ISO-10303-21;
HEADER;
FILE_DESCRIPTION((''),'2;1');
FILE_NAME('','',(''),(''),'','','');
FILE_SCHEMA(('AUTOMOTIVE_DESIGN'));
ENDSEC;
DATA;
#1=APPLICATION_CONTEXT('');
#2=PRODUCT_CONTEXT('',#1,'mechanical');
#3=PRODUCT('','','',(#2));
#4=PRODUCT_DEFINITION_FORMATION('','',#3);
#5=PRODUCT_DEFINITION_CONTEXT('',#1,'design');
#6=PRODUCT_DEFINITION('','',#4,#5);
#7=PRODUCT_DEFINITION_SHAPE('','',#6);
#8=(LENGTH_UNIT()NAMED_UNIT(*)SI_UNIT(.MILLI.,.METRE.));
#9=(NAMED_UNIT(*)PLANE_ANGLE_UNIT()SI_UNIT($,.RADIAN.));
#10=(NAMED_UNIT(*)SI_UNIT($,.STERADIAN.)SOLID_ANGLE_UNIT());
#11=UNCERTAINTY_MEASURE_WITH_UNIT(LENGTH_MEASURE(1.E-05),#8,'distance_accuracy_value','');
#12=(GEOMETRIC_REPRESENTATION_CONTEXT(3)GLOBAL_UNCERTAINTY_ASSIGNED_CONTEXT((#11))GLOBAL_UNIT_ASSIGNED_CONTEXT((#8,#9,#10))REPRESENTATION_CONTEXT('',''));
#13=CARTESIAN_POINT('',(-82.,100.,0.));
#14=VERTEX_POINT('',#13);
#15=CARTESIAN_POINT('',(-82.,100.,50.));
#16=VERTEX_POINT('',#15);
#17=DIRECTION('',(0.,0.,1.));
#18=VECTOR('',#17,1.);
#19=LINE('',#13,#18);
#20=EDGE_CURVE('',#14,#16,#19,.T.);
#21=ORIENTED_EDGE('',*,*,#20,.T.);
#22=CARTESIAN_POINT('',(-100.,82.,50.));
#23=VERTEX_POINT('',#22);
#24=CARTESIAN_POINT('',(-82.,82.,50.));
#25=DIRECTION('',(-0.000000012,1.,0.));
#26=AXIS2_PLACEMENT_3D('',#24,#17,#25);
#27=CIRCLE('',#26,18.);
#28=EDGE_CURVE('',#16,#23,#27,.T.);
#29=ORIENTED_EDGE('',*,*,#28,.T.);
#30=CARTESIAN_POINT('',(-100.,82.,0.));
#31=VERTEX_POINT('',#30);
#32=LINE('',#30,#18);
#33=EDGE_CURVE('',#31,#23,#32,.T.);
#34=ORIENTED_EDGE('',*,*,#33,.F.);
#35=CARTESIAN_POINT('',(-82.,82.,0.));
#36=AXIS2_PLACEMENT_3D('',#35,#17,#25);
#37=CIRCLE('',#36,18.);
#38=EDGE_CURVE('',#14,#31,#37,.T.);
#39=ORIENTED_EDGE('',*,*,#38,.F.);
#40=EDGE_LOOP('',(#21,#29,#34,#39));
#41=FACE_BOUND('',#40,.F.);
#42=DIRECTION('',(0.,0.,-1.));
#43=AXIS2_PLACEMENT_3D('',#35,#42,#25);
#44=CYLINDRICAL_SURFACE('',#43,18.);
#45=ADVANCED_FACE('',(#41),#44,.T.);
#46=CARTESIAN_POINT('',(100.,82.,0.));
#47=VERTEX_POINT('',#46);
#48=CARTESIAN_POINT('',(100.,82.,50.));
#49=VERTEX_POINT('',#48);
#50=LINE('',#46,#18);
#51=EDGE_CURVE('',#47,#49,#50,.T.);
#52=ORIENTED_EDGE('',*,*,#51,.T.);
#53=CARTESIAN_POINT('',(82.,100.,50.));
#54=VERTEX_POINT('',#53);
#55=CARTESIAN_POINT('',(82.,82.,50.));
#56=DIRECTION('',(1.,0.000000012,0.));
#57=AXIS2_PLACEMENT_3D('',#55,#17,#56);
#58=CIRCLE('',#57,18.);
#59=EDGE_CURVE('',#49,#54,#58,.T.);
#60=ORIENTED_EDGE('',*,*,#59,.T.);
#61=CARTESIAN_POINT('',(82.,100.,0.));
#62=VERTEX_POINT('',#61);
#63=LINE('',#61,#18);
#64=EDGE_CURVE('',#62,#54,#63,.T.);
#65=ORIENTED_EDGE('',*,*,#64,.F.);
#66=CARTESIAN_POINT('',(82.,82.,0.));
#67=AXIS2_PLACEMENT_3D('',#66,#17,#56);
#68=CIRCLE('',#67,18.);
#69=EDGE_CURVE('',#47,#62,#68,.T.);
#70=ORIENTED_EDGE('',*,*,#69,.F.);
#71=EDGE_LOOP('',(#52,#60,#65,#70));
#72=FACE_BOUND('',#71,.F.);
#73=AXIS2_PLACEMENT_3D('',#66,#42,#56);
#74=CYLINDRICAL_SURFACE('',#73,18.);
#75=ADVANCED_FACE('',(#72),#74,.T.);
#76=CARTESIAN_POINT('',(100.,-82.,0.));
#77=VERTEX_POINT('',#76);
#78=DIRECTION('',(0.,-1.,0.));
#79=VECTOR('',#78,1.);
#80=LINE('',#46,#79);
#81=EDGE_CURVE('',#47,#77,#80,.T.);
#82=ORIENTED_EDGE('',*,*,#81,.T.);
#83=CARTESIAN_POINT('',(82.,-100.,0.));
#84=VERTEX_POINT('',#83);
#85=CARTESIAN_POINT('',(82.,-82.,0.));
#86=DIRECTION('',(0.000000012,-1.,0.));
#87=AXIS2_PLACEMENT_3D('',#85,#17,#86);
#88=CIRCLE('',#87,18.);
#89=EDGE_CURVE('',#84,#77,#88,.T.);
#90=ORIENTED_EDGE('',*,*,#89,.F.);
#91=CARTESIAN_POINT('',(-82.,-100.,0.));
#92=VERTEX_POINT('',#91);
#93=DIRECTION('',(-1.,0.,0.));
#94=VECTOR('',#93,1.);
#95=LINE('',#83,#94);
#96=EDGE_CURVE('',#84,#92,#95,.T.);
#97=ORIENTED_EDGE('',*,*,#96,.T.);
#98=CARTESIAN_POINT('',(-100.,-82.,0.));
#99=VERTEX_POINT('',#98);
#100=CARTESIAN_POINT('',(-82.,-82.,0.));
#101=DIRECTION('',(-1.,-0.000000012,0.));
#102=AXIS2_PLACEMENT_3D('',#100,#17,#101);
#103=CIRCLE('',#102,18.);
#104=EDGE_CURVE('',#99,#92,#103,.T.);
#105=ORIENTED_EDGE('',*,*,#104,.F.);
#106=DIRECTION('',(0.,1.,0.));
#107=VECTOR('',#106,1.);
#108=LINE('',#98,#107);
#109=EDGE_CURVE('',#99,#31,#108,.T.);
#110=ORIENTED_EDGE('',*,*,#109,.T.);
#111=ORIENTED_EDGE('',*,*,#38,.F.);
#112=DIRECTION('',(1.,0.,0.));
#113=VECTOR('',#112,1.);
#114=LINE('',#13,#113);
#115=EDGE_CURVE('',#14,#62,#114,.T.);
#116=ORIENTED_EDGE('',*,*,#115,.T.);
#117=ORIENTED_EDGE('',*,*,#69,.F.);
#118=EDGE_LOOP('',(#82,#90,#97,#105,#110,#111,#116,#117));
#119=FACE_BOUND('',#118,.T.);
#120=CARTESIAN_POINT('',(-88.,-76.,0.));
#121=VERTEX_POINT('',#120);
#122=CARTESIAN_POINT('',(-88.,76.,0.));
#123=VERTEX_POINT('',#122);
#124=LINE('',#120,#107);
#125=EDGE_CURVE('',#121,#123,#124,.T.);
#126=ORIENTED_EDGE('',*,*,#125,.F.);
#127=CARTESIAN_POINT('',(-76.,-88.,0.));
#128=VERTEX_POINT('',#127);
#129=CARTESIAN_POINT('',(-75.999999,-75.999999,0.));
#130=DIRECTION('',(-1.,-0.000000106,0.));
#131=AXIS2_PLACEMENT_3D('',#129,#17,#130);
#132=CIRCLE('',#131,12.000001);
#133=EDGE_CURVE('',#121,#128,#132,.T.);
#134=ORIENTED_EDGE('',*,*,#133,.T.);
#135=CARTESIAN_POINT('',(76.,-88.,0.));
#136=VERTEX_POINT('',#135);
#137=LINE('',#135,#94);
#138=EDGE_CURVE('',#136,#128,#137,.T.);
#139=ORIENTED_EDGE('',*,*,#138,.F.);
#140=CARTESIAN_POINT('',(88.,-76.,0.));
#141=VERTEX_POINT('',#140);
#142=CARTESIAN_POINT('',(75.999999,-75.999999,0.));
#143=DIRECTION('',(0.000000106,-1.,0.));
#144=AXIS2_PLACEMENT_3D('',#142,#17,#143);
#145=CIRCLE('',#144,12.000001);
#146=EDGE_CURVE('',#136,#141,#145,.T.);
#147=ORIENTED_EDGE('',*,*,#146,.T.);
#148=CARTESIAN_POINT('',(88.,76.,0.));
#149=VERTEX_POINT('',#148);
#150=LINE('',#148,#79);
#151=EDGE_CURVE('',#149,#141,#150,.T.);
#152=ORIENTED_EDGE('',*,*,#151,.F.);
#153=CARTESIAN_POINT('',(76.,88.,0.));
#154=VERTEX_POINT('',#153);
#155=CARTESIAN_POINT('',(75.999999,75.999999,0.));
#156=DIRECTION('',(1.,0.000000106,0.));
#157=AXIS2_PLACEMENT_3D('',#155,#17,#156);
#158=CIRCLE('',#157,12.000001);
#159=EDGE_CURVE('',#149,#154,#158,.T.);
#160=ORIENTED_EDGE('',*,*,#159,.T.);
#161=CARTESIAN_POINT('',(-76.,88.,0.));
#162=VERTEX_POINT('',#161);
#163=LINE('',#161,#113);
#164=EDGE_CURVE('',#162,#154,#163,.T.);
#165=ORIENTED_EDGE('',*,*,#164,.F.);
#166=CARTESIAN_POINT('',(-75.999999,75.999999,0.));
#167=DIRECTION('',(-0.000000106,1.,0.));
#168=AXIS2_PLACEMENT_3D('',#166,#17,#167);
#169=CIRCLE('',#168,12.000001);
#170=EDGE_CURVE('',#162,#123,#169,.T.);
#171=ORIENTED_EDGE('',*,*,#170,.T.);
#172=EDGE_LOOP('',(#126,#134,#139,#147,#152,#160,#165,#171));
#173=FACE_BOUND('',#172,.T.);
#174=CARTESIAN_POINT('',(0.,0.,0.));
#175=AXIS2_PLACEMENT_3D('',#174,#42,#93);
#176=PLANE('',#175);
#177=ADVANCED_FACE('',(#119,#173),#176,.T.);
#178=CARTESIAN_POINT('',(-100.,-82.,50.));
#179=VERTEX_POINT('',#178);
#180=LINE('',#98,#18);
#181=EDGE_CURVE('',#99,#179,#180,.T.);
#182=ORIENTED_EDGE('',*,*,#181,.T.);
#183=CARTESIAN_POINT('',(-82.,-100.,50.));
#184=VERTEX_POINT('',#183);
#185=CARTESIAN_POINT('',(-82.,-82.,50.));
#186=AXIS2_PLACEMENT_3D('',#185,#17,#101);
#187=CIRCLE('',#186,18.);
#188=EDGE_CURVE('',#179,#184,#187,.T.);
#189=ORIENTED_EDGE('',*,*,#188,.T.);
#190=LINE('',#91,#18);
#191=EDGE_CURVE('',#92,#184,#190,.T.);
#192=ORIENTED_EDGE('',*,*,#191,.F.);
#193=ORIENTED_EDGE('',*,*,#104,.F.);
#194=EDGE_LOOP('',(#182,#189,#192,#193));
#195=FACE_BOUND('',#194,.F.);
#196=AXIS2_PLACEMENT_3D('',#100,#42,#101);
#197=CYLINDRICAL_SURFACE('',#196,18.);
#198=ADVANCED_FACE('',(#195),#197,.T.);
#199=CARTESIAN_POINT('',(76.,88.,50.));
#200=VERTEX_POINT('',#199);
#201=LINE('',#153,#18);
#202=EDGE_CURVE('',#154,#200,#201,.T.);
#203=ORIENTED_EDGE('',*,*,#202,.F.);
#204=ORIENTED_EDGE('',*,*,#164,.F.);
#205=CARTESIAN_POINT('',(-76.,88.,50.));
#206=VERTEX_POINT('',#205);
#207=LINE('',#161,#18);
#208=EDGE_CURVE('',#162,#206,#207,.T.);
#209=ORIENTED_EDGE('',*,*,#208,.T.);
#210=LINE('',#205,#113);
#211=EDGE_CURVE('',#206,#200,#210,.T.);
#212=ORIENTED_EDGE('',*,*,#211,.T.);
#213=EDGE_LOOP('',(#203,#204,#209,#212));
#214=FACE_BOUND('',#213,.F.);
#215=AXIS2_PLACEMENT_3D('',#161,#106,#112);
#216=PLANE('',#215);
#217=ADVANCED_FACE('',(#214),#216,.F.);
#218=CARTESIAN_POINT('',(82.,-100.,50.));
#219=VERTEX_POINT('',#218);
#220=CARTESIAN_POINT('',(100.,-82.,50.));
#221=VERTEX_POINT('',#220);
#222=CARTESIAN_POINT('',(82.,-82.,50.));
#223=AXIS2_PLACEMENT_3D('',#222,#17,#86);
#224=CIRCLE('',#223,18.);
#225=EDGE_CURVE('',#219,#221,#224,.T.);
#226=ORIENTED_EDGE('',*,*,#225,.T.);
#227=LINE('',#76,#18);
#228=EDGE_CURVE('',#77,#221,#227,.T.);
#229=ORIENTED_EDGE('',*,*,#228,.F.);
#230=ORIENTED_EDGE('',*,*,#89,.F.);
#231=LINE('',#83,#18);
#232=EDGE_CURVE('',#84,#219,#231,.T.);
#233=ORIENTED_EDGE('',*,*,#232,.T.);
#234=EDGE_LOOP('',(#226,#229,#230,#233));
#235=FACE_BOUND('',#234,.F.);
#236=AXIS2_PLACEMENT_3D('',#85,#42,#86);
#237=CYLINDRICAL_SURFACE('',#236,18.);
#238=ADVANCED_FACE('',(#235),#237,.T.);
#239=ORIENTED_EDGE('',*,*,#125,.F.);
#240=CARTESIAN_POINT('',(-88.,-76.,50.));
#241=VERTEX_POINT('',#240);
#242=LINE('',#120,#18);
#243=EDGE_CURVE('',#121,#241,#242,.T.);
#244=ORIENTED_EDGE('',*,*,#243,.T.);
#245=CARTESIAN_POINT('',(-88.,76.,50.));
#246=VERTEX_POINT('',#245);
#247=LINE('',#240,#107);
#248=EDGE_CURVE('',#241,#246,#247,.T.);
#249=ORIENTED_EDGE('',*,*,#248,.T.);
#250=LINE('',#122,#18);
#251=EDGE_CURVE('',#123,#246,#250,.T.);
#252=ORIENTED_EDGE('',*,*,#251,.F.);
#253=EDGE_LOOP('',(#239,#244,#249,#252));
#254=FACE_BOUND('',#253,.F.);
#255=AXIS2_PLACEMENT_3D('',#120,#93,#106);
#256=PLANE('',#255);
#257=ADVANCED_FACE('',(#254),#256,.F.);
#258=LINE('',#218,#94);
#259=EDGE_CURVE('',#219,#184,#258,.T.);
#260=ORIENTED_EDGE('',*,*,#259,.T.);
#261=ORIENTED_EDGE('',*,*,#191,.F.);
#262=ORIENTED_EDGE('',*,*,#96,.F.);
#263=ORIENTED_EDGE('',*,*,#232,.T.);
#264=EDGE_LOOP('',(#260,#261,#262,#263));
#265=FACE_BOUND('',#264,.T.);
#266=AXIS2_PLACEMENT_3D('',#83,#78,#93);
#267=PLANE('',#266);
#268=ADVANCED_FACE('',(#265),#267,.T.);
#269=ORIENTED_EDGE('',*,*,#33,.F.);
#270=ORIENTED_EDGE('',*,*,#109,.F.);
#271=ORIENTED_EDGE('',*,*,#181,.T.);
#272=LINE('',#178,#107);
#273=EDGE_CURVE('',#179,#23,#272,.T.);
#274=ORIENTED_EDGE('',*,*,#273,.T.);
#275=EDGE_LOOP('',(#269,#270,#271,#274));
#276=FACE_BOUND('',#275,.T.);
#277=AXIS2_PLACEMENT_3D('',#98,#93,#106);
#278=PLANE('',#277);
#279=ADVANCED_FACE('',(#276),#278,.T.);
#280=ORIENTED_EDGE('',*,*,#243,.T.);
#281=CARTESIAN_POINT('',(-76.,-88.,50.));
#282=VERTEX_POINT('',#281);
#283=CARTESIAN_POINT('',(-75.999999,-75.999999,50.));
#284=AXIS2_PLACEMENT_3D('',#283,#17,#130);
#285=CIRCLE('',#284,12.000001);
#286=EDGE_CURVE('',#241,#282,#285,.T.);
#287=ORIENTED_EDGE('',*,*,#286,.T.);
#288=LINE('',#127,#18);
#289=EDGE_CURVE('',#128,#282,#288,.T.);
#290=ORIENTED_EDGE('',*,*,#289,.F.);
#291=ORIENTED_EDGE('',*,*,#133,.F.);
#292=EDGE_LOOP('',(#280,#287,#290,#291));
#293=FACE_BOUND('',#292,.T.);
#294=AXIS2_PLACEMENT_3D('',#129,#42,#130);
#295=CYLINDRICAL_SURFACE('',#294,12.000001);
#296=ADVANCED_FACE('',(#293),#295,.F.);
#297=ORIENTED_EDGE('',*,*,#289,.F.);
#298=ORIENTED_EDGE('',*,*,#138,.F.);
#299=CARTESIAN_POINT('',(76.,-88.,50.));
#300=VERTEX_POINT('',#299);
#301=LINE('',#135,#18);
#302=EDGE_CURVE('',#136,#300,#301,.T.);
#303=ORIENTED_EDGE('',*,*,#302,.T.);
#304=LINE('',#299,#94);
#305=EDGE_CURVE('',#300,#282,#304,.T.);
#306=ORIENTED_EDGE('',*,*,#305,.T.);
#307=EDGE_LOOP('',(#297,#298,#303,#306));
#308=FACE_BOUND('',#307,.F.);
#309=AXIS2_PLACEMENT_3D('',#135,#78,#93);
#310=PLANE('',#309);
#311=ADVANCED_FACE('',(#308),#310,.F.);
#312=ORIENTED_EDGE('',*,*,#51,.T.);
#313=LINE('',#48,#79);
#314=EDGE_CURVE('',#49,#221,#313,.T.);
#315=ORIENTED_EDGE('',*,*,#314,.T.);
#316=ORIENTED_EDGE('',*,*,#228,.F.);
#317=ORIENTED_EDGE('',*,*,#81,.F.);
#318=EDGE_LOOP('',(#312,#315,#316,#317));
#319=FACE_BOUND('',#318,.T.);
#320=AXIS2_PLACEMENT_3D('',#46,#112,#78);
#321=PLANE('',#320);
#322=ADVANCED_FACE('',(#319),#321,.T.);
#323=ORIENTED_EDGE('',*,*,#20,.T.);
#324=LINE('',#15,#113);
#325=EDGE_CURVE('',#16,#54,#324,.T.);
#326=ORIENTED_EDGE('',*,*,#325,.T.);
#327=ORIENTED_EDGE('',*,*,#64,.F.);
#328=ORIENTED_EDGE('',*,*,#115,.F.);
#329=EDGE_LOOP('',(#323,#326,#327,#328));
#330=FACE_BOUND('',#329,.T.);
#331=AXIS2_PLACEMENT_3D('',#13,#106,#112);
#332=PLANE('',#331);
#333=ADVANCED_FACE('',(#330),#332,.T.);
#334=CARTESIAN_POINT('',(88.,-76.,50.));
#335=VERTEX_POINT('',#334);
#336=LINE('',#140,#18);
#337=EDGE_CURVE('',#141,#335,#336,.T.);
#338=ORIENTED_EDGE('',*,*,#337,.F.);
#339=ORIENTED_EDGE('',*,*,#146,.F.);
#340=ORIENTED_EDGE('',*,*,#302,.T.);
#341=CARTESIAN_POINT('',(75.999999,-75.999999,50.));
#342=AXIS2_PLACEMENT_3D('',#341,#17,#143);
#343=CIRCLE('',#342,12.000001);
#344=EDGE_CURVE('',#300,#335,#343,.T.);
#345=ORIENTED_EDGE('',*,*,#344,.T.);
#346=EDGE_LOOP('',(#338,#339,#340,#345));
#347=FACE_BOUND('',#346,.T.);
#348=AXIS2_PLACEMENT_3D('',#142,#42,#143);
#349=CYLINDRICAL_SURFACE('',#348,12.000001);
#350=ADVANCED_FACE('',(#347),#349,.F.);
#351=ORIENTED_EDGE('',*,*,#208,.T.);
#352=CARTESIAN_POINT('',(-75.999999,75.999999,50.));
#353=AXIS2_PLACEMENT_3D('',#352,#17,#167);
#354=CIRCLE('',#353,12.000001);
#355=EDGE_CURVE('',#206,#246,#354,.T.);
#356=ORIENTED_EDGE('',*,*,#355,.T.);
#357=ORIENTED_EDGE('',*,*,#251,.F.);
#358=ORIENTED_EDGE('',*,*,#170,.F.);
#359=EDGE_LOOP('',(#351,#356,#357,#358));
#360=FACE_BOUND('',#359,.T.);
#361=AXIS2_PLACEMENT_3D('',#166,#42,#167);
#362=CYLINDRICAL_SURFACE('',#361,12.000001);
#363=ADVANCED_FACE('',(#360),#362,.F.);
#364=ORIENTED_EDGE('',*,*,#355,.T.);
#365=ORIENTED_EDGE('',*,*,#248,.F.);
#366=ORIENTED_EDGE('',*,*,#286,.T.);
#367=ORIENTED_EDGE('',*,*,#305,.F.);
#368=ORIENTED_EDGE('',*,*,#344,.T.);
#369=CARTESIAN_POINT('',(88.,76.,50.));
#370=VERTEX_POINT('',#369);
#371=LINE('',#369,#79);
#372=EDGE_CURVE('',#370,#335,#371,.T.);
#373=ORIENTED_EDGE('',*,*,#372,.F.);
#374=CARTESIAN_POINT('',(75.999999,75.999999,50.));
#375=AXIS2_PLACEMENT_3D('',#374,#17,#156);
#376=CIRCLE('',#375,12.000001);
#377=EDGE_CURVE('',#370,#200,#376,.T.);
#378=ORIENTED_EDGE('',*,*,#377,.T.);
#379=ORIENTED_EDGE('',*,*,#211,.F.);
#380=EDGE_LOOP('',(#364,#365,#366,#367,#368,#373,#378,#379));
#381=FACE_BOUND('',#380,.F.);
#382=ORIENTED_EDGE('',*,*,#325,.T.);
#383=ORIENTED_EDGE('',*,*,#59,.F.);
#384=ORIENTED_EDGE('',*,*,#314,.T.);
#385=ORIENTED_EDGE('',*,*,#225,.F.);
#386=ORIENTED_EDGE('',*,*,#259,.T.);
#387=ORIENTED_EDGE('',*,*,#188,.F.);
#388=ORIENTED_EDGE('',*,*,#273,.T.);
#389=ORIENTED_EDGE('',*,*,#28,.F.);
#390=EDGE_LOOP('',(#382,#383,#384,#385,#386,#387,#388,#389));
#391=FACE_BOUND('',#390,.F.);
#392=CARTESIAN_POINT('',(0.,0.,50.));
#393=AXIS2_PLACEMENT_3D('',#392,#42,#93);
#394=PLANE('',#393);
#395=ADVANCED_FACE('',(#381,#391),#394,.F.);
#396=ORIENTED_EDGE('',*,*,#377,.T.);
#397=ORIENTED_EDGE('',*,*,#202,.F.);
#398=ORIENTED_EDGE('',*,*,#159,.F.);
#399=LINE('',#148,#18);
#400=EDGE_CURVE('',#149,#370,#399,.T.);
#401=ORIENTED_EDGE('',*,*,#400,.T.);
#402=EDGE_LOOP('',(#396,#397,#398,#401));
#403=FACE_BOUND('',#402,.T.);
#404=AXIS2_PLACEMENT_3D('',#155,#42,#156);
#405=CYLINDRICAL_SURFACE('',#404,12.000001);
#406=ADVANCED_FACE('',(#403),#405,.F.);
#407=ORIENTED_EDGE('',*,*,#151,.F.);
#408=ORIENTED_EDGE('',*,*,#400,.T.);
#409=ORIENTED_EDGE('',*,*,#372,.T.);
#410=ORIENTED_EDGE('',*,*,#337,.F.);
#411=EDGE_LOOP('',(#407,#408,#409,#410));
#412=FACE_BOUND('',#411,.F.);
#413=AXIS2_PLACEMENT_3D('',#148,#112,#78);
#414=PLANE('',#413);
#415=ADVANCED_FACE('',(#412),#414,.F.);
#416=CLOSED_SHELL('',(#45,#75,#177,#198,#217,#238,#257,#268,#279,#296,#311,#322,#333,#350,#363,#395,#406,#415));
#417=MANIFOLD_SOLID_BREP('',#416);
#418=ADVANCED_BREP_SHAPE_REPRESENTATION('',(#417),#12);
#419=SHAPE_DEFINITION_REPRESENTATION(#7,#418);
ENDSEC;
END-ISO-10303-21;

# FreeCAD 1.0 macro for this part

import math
import FreeCAD as App
import Part
import Sketcher

V = App.Vector

doc = App.newDocument("Part")
body = doc.addObject("PartDesign::Body", "Body")

sketch1 = body.newObject("Sketcher::SketchObject", "Sketch")
sketch1.AttachmentSupport = (doc.getObject("XY_Plane"), [""])
sketch1.MapMode = "FlatFace"
sketch1.addGeometry(Part.LineSegment(V(82, 100, 0), V(-82, 100, 0)), False)
sketch1.addGeometry(Part.ArcOfCircle(Part.Circle(V(-82, 82, 0), V(0, 0, 1), 18), math.radians(90), math.radians(180)), False)
sketch1.addGeometry(Part.LineSegment(V(-100, 82, 0), V(-100, -82, 0)), False)
sketch1.addGeometry(Part.ArcOfCircle(Part.Circle(V(-82, -82, 0), V(0, 0, 1), 18), math.radians(-180), math.radians(-90)), False)
sketch1.addGeometry(Part.LineSegment(V(-82, -100, 0), V(82, -100, 0)), False)
sketch1.addGeometry(Part.ArcOfCircle(Part.Circle(V(82, -82, 0), V(0, 0, 1), 18), math.radians(-90), math.radians(0)), False)
sketch1.addGeometry(Part.LineSegment(V(100, -82, 0), V(100, 82, 0)), False)
sketch1.addGeometry(Part.ArcOfCircle(Part.Circle(V(82, 82, 0), V(0, 0, 1), 18), math.radians(0), math.radians(90)), False)
sketch1.addGeometry(Part.LineSegment(V(-76, 88, 0), V(76, 88, 0)), False)
sketch1.addGeometry(Part.ArcOfCircle(Part.Circle(V(76, 76, 0), V(0, 0, 1), 12), math.radians(0), math.radians(90)), False)
sketch1.addGeometry(Part.LineSegment(V(88, 76, 0), V(88, -76, 0)), False)
sketch1.addGeometry(Part.ArcOfCircle(Part.Circle(V(76, -76, 0), V(0, 0, 1), 12), math.radians(-90), math.radians(0)), False)
sketch1.addGeometry(Part.LineSegment(V(76, -88, 0), V(-76, -88, 0)), False)
sketch1.addGeometry(Part.ArcOfCircle(Part.Circle(V(-76, -76, 0), V(0, 0, 1), 12), math.radians(-180), math.radians(-90)), False)
sketch1.addGeometry(Part.LineSegment(V(-88, -76, 0), V(-88, 76, 0)), False)
sketch1.addGeometry(Part.ArcOfCircle(Part.Circle(V(-76, 76, 0), V(0, 0, 1), 12), math.radians(90), math.radians(180)), False)
sketch1.addConstraint(Sketcher.Constraint("Tangent", 0, 2, 1, 1))
sketch1.addConstraint(Sketcher.Constraint("Tangent", 1, 2, 2, 1))
sketch1.addConstraint(Sketcher.Constraint("Tangent", 2, 2, 3, 1))
sketch1.addConstraint(Sketcher.Constraint("Tangent", 3, 2, 4, 1))
sketch1.addConstraint(Sketcher.Constraint("Tangent", 4, 2, 5, 1))
sketch1.addConstraint(Sketcher.Constraint("Tangent", 5, 2, 6, 1))
sketch1.addConstraint(Sketcher.Constraint("Tangent", 6, 2, 7, 1))
sketch1.addConstraint(Sketcher.Constraint("Tangent", 7, 2, 0, 1))
sketch1.addConstraint(Sketcher.Constraint("Tangent", 8, 2, 9, 2))
sketch1.addConstraint(Sketcher.Constraint("Tangent", 9, 1, 10, 1))
sketch1.addConstraint(Sketcher.Constraint("Tangent", 10, 2, 11, 2))
sketch1.addConstraint(Sketcher.Constraint("Tangent", 11, 1, 12, 1))
sketch1.addConstraint(Sketcher.Constraint("Tangent", 12, 2, 13, 2))
sketch1.addConstraint(Sketcher.Constraint("Tangent", 13, 1, 14, 1))
sketch1.addConstraint(Sketcher.Constraint("Tangent", 14, 2, 15, 2))
sketch1.addConstraint(Sketcher.Constraint("Tangent", 15, 1, 8, 1))
sketch1.addConstraint(Sketcher.Constraint("Horizontal", 0))
sketch1.addConstraint(Sketcher.Constraint("Vertical", 2))
sketch1.addConstraint(Sketcher.Constraint("Horizontal", 4))
sketch1.addConstraint(Sketcher.Constraint("Vertical", 6))
sketch1.addConstraint(Sketcher.Constraint("Horizontal", 8))
sketch1.addConstraint(Sketcher.Constraint("Vertical", 10))
sketch1.addConstraint(Sketcher.Constraint("Horizontal", 12))
sketch1.addConstraint(Sketcher.Constraint("Vertical", 14))
sketch1.addConstraint(Sketcher.Constraint("Equal", 1, 3))
sketch1.addConstraint(Sketcher.Constraint("Equal", 3, 5))
sketch1.addConstraint(Sketcher.Constraint("Equal", 5, 7))
sketch1.addConstraint(Sketcher.Constraint("Equal", 9, 11))
sketch1.addConstraint(Sketcher.Constraint("Equal", 11, 13))
sketch1.addConstraint(Sketcher.Constraint("Equal", 13, 15))
sketch1.addConstraint(Sketcher.Constraint("Symmetric", 1, 3, 5, 3, -1, 1))
sketch1.addConstraint(Sketcher.Constraint("Symmetric", 9, 3, 13, 3, -1, 1))
sketch1.addConstraint(Sketcher.Constraint("Equal", 4, 2))
sketch1.addConstraint(Sketcher.Constraint("Equal", 12, 10))
sketch1.addConstraint(Sketcher.Constraint("Radius", 1, 18.0))
sketch1.addConstraint(Sketcher.Constraint("Radius", 9, 12.000001))
sketch1.addConstraint(Sketcher.Constraint("DistanceX", 0, 2, 0, 1, 164.0))
sketch1.addConstraint(Sketcher.Constraint("DistanceX", 8, 1, 8, 2, 152.0))
pad1 = body.newObject("PartDesign::Pad", "Pad")
pad1.Profile = sketch1
pad1.Length = 50

doc.recompute()
